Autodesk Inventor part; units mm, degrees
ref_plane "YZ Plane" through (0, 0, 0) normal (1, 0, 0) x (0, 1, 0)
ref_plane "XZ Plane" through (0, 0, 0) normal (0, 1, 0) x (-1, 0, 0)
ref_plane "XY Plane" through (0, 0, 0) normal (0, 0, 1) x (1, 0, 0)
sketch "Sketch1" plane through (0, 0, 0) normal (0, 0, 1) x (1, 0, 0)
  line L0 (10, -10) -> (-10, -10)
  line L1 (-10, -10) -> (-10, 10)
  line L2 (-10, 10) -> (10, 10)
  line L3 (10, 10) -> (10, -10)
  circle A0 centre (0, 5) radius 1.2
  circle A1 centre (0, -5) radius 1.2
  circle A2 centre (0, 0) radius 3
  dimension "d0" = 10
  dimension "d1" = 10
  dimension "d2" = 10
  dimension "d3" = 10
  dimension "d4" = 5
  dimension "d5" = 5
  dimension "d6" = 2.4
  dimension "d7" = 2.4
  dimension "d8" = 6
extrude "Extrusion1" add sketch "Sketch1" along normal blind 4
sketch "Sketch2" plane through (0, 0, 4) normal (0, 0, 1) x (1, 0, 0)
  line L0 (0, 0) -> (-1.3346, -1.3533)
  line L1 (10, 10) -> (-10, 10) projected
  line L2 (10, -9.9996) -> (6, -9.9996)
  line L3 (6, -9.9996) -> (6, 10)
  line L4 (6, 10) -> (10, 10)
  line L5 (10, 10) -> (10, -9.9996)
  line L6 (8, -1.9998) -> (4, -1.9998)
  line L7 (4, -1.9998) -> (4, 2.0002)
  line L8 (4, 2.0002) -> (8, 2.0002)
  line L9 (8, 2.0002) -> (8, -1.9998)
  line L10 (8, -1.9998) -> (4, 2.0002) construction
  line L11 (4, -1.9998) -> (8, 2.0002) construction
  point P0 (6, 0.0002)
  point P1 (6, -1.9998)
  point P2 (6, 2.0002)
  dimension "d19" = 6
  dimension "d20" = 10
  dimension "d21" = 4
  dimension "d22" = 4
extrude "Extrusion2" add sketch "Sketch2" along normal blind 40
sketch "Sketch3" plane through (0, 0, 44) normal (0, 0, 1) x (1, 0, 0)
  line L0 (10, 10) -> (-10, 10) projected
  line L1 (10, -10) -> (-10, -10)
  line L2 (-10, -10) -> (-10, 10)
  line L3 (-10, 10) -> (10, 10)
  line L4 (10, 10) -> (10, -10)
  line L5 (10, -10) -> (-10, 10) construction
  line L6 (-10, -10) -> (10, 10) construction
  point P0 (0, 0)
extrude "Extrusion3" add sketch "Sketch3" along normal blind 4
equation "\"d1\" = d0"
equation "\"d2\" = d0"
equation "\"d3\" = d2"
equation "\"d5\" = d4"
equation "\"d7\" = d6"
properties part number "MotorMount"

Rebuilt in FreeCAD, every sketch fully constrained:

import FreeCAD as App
import Part
import Sketcher


def add_polygon(sketch, points):
    """Adds a closed chain of lines whose ends are joined by coincident constraints."""
    first, n = sketch.GeometryCount, len(points)
    for a, b in zip(points, points[1:] + points[:1]):
        sketch.addGeometry(Part.LineSegment(App.Vector(*a, 0), App.Vector(*b, 0)), False)
    for i in range(n):
        sketch.addConstraint(Sketcher.Constraint("Coincident", first + i, 2, first + (i + 1) % n, 1))

doc = App.newDocument("Part")
body = doc.addObject("PartDesign::Body", "Body")

# Sketch on XY plane
sketch1 = body.newObject("Sketcher::SketchObject", "Sketch")
sketch1.AttachmentSupport = (doc.getObject("XY_Plane"), [""])
sketch1.MapMode = "FlatFace"
add_polygon(sketch1, [(-10, -10), (10, -10), (10, 10), (-10, 10)])  # lines 0-3
sketch1.addGeometry(Part.Circle(App.Vector(0, -5, 0), App.Vector(0, 0, 1), 1.2), False)  # 4
sketch1.addGeometry(Part.Circle(App.Vector(0, 0, 0), App.Vector(0, 0, 1), 3), False)  # 5
sketch1.addGeometry(Part.Circle(App.Vector(0, 5, 0), App.Vector(0, 0, 1), 1.2), False)  # 6
sketch1.addConstraint(Sketcher.Constraint("Horizontal", 0))
sketch1.addConstraint(Sketcher.Constraint("Vertical", 1))
sketch1.addConstraint(Sketcher.Constraint("Horizontal", 2))
sketch1.addConstraint(Sketcher.Constraint("Vertical", 3))
sketch1.addConstraint(Sketcher.Constraint("Coincident", 5, 3, -1, 1))
sketch1.addConstraint(Sketcher.Constraint("Equal", 4, 6))
sketch1.addConstraint(Sketcher.Constraint("Symmetric", 4, 3, 6, 3, -1, 1))
sketch1.addConstraint(Sketcher.Constraint("Symmetric", 0, 2, 2, 2, -1, 1))
sketch1.addConstraint(Sketcher.Constraint("PointOnObject", 4, 3, -2))
sketch1.addConstraint(Sketcher.Constraint("Equal", 2, 1))
sketch1.addConstraint(Sketcher.Constraint("Diameter", 5, 6.0))
sketch1.addConstraint(Sketcher.Constraint("Diameter", 4, 2.4))
sketch1.addConstraint(Sketcher.Constraint("DistanceY", 4, 3, -1, 1, 5.0))
sketch1.addConstraint(Sketcher.Constraint("DistanceX", -1, 1, 0, 2, 10.0))
pad1 = body.newObject("PartDesign::Pad", "Pad")
pad1.Profile = sketch1
pad1.Length = 4

# Sketch on XY plane
sketch2 = body.newObject("Sketcher::SketchObject", "Sketch001")
sketch2.AttachmentSupport = (doc.getObject("XY_Plane"), [""])
sketch2.MapMode = "FlatFace"
sketch2.AttachmentOffset = App.Placement(App.Vector(0, 0, 4), App.Rotation())
add_polygon(sketch2, [(10, -10), (10, 10), (6, 10), (6, 2), (4, 2), (4, -2), (6, -2), (6, -10)])  # lines 0-7
sketch2.addConstraint(Sketcher.Constraint("Vertical", 0))
sketch2.addConstraint(Sketcher.Constraint("Horizontal", 1))
sketch2.addConstraint(Sketcher.Constraint("Vertical", 2))
sketch2.addConstraint(Sketcher.Constraint("Horizontal", 3))
sketch2.addConstraint(Sketcher.Constraint("Vertical", 4))
sketch2.addConstraint(Sketcher.Constraint("Horizontal", 5))
sketch2.addConstraint(Sketcher.Constraint("Vertical", 6))
sketch2.addConstraint(Sketcher.Constraint("Horizontal", 7))
sketch2.addConstraint(Sketcher.Constraint("Symmetric", 2, 2, 5, 2, -1))
sketch2.addConstraint(Sketcher.Constraint("Equal", 7, 4))
sketch2.addConstraint(Sketcher.Constraint("Equal", 2, 6))
sketch2.addConstraint(Sketcher.Constraint("DistanceX", 1, 2, 1, 1, 4.0))
sketch2.addConstraint(Sketcher.Constraint("DistanceX", -1, 1, 0, 2, 10.0))
sketch2.addConstraint(Sketcher.Constraint("DistanceY", -1, 1, 0, 2, 10.0))
sketch2.addConstraint(Sketcher.Constraint("DistanceX", -1, 1, 3, 2, 4.0))
pad2 = body.newObject("PartDesign::Pad", "Pad001")
pad2.Profile = sketch2
pad2.Length = 40

# Sketch on XY plane
sketch3 = body.newObject("Sketcher::SketchObject", "Sketch002")
sketch3.AttachmentSupport = (doc.getObject("XY_Plane"), [""])
sketch3.MapMode = "FlatFace"
sketch3.AttachmentOffset = App.Placement(App.Vector(0, 0, 44), App.Rotation())
add_polygon(sketch3, [(10, -10), (10, 10), (-10, 10), (-10, -10)])  # lines 0-3
sketch3.addConstraint(Sketcher.Constraint("Vertical", 0))
sketch3.addConstraint(Sketcher.Constraint("Horizontal", 1))
sketch3.addConstraint(Sketcher.Constraint("Vertical", 2))
sketch3.addConstraint(Sketcher.Constraint("Horizontal", 3))
sketch3.addConstraint(Sketcher.Constraint("Symmetric", 0, 2, 2, 2, -1, 1))
sketch3.addConstraint(Sketcher.Constraint("Equal", 3, 0))
sketch3.addConstraint(Sketcher.Constraint("DistanceX", 1, 2, 1, 1, 20.0))
pad3 = body.newObject("PartDesign::Pad", "Pad002")
pad3.Profile = sketch3
pad3.Length = 4

doc.recompute()
